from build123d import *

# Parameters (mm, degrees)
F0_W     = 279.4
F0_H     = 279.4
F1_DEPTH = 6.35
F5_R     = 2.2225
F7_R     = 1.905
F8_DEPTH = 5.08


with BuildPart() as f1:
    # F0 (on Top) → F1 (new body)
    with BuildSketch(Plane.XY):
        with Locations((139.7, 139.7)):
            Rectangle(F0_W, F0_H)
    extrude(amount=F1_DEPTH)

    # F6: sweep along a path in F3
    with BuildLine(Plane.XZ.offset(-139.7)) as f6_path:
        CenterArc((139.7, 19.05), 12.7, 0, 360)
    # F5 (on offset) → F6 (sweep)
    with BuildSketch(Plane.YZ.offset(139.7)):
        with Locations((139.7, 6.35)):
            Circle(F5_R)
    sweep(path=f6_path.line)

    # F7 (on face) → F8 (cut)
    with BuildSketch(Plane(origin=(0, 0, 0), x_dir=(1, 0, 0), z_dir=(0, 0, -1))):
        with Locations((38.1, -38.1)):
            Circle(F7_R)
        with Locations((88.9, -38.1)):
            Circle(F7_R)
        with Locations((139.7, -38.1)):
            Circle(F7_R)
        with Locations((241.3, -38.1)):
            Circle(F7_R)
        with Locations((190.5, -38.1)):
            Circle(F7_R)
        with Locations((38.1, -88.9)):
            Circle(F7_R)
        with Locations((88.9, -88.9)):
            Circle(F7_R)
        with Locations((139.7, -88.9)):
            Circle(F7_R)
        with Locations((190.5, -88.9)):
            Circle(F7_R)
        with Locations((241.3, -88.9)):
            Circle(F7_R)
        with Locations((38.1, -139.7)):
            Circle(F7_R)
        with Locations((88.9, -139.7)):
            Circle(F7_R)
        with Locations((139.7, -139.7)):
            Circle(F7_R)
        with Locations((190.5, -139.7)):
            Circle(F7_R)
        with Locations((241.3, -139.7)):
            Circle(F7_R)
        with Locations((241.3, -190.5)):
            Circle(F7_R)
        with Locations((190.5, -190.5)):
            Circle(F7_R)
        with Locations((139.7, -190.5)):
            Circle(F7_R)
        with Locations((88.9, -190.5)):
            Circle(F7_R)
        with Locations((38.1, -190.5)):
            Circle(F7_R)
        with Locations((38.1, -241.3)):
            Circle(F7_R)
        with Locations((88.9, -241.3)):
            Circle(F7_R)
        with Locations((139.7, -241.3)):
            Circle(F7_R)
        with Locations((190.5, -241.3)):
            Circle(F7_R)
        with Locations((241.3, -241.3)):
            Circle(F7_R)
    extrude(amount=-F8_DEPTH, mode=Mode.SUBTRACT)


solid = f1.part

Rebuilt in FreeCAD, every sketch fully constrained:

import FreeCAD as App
import Part
import Sketcher
Q = App.Units.Quantity


def add_polygon(sketch, points):
    """Adds a closed chain of lines whose ends are joined by coincident constraints."""
    first, n = sketch.GeometryCount, len(points)
    for a, b in zip(points, points[1:] + points[:1]):
        sketch.addGeometry(Part.LineSegment(App.Vector(*a, 0), App.Vector(*b, 0)), False)
    for i in range(n):
        sketch.addConstraint(Sketcher.Constraint("Coincident", first + i, 2, first + (i + 1) % n, 1))

doc = App.newDocument("Part")
params = doc.addObject("Spreadsheet::Sheet", "Params")
for row, (alias, value) in enumerate([
    ("sketch1_width", "11 in"),
    ("pad1_length", "0.25 in"),
    ("sketch2_diameter", "0.175 in"),
    ("sketch3_diameter", "1 in"),
    ("sketch4_diameter", "0.15 in"),
    ("pocket1_length", "0.2 in"),
], start=1):
    params.set(f"A{row}", alias)
    params.set(f"B{row}", "=" + value)
    params.setAlias(f"B{row}", alias)

body = doc.addObject("PartDesign::Body", "Body")

# Sketch on XY plane
sketch1 = doc.addObject("Sketcher::SketchObject", "Sketch")
body.addObject(sketch1)
sketch1.AttachmentSupport = (doc.XY_Plane, [""])
sketch1.MapMode = "FlatFace"
add_polygon(sketch1, [(0, 279), (0, 0), (279, 0), (279, 279)])  # lines 0-3
sketch1.addConstraint(Sketcher.Constraint("Vertical", 0))
sketch1.addConstraint(Sketcher.Constraint("Horizontal", 1))
sketch1.addConstraint(Sketcher.Constraint("Vertical", 2))
sketch1.addConstraint(Sketcher.Constraint("Horizontal", 3))
sketch1.addConstraint(Sketcher.Constraint("Coincident", 0, 2, -1, 1))
sketch1.addConstraint(Sketcher.Constraint("Equal", 3, 0))
sketch1.addConstraint(Sketcher.Constraint("DistanceX", 1, 1, 1, 2, Q("11 in")))
sketch1.setExpression("Constraints[10]", "Params.sketch1_width")
pad1 = doc.addObject("PartDesign::Pad", "Pad")
body.addObject(pad1)
pad1.Profile = sketch1
pad1.setExpression("Length", "Params.pad1_length")

# Sketch on YZ plane
sketch2 = doc.addObject("Sketcher::SketchObject", "Sketch001")
body.addObject(sketch2)
sketch2.AttachmentSupport = (doc.YZ_Plane, [""])
sketch2.MapMode = "FlatFace"
sketch2.AttachmentOffset = App.Placement(App.Vector(0, 0, 5.5 * 25.4), App.Rotation())
sketch2.addGeometry(Part.Circle(App.Vector(139.7, 6.3, 0), App.Vector(0, 0, 1), 2.2), False)
sketch2.addConstraint(Sketcher.Constraint("Diameter", 0, Q("0.175 in")))
sketch2.addConstraint(Sketcher.Constraint("DistanceX", -1, 1, 0, 3, Q("5.5 in")))
sketch2.addConstraint(Sketcher.Constraint("DistanceY", -1, 1, 0, 3, Q("0.25 in")))
sketch2.setExpression("Constraints[0]", "Params.sketch2_diameter")

# Sketch on XZ plane
sketch3 = doc.addObject("Sketcher::SketchObject", "Sketch002")
body.addObject(sketch3)
sketch3.AttachmentSupport = (doc.XZ_Plane, [""])
sketch3.MapMode = "FlatFace"
sketch3.AttachmentOffset = App.Placement(App.Vector(0, 0, -5.5 * 25.4), App.Rotation())
sketch3.addGeometry(Part.Circle(App.Vector(140, 19, 0), App.Vector(0, 0, 1), 13), False)
sketch3.addConstraint(Sketcher.Constraint("Diameter", 0, Q("1 in")))
sketch3.addConstraint(Sketcher.Constraint("DistanceX", -1, 1, 0, 3, Q("5.5 in")))
sketch3.addConstraint(Sketcher.Constraint("DistanceY", -1, 1, 0, 3, Q("0.75 in")))
sketch3.setExpression("Constraints[0]", "Params.sketch3_diameter")
doc.recompute()

additivepipe = doc.addObject("PartDesign::AdditivePipe", "AdditivePipe")
body.addObject(additivepipe)
additivepipe.Profile = sketch2
additivepipe.Spine = (sketch3, ["Edge1"])

# Sketch on XY plane
sketch4 = doc.addObject("Sketcher::SketchObject", "Sketch003")
body.addObject(sketch4)
sketch4.AttachmentSupport = (doc.XY_Plane, [""])
sketch4.MapMode = "FlatFace"
sketch4.addGeometry(Part.Circle(App.Vector(38.1, 38.1, 0), App.Vector(0, 0, 1), 1.9), False)
sketch4.addGeometry(Part.Circle(App.Vector(88.9, 38.1, 0), App.Vector(0, 0, 1), 1.9), False)
sketch4.addGeometry(Part.Circle(App.Vector(139.7, 38.1, 0), App.Vector(0, 0, 1), 1.9), False)
sketch4.addGeometry(Part.Circle(App.Vector(241.3, 38.1, 0), App.Vector(0, 0, 1), 1.9), False)
sketch4.addGeometry(Part.Circle(App.Vector(190.5, 38.1, 0), App.Vector(0, 0, 1), 1.9), False)
sketch4.addGeometry(Part.Circle(App.Vector(38.1, 88.9, 0), App.Vector(0, 0, 1), 1.9), False)
sketch4.addGeometry(Part.Circle(App.Vector(88.9, 88.9, 0), App.Vector(0, 0, 1), 1.9), False)
sketch4.addGeometry(Part.Circle(App.Vector(139.7, 88.9, 0), App.Vector(0, 0, 1), 1.9), False)
sketch4.addGeometry(Part.Circle(App.Vector(190.5, 88.9, 0), App.Vector(0, 0, 1), 1.9), False)
sketch4.addGeometry(Part.Circle(App.Vector(241.3, 88.9, 0), App.Vector(0, 0, 1), 1.9), False)
sketch4.addGeometry(Part.Circle(App.Vector(38.1, 139.7, 0), App.Vector(0, 0, 1), 1.9), False)
sketch4.addGeometry(Part.Circle(App.Vector(88.9, 139.7, 0), App.Vector(0, 0, 1), 1.9), False)
sketch4.addGeometry(Part.Circle(App.Vector(139.7, 139.7, 0), App.Vector(0, 0, 1), 1.9), False)
sketch4.addGeometry(Part.Circle(App.Vector(190.5, 139.7, 0), App.Vector(0, 0, 1), 1.9), False)
sketch4.addGeometry(Part.Circle(App.Vector(241.3, 139.7, 0), App.Vector(0, 0, 1), 1.9), False)
sketch4.addGeometry(Part.Circle(App.Vector(241.3, 190.5, 0), App.Vector(0, 0, 1), 1.9), False)
sketch4.addGeometry(Part.Circle(App.Vector(190.5, 190.5, 0), App.Vector(0, 0, 1), 1.9), False)
sketch4.addGeometry(Part.Circle(App.Vector(139.7, 190.5, 0), App.Vector(0, 0, 1), 1.9), False)
sketch4.addGeometry(Part.Circle(App.Vector(88.9, 190.5, 0), App.Vector(0, 0, 1), 1.9), False)
sketch4.addGeometry(Part.Circle(App.Vector(38.1, 190.5, 0), App.Vector(0, 0, 1), 1.9), False)
sketch4.addGeometry(Part.Circle(App.Vector(38.1, 241.3, 0), App.Vector(0, 0, 1), 1.9), False)
sketch4.addGeometry(Part.Circle(App.Vector(88.9, 241.3, 0), App.Vector(0, 0, 1), 1.9), False)
sketch4.addGeometry(Part.Circle(App.Vector(139.7, 241.3, 0), App.Vector(0, 0, 1), 1.9), False)
sketch4.addGeometry(Part.Circle(App.Vector(190.5, 241.3, 0), App.Vector(0, 0, 1), 1.9), False)
sketch4.addGeometry(Part.Circle(App.Vector(241.3, 241.3, 0), App.Vector(0, 0, 1), 1.9), False)
sketch4.addConstraint(Sketcher.Constraint("Equal", 0, 1))
sketch4.addConstraint(Sketcher.Constraint("Equal", 1, 2))
sketch4.addConstraint(Sketcher.Constraint("Equal", 2, 3))
sketch4.addConstraint(Sketcher.Constraint("Equal", 3, 4))
sketch4.addConstraint(Sketcher.Constraint("Equal", 4, 5))
sketch4.addConstraint(Sketcher.Constraint("Equal", 5, 6))
sketch4.addConstraint(Sketcher.Constraint("Equal", 6, 7))
sketch4.addConstraint(Sketcher.Constraint("Equal", 7, 8))
sketch4.addConstraint(Sketcher.Constraint("Equal", 8, 9))
sketch4.addConstraint(Sketcher.Constraint("Equal", 9, 10))
sketch4.addConstraint(Sketcher.Constraint("Equal", 10, 11))
sketch4.addConstraint(Sketcher.Constraint("Equal", 11, 12))
sketch4.addConstraint(Sketcher.Constraint("Equal", 12, 13))
sketch4.addConstraint(Sketcher.Constraint("Equal", 13, 14))
sketch4.addConstraint(Sketcher.Constraint("Equal", 14, 15))
sketch4.addConstraint(Sketcher.Constraint("Equal", 15, 16))
sketch4.addConstraint(Sketcher.Constraint("Equal", 16, 17))
sketch4.addConstraint(Sketcher.Constraint("Equal", 17, 18))
sketch4.addConstraint(Sketcher.Constraint("Equal", 18, 19))
sketch4.addConstraint(Sketcher.Constraint("Equal", 19, 20))
sketch4.addConstraint(Sketcher.Constraint("Equal", 20, 21))
sketch4.addConstraint(Sketcher.Constraint("Equal", 21, 22))
sketch4.addConstraint(Sketcher.Constraint("Equal", 22, 23))
sketch4.addConstraint(Sketcher.Constraint("Equal", 23, 24))
sketch4.addConstraint(Sketcher.Constraint("Horizontal", 0, 3, 1, 3))
sketch4.addConstraint(Sketcher.Constraint("Horizontal", 1, 3, 2, 3))
sketch4.addConstraint(Sketcher.Constraint("Horizontal", 2, 3, 3, 3))
sketch4.addConstraint(Sketcher.Constraint("Horizontal", 3, 3, 4, 3))
sketch4.addConstraint(Sketcher.Constraint("Horizontal", 5, 3, 6, 3))
sketch4.addConstraint(Sketcher.Constraint("Horizontal", 6, 3, 7, 3))
sketch4.addConstraint(Sketcher.Constraint("Horizontal", 7, 3, 8, 3))
sketch4.addConstraint(Sketcher.Constraint("Horizontal", 8, 3, 9, 3))
sketch4.addConstraint(Sketcher.Constraint("Horizontal", 10, 3, 11, 3))
sketch4.addConstraint(Sketcher.Constraint("Horizontal", 11, 3, 12, 3))
sketch4.addConstraint(Sketcher.Constraint("Horizontal", 12, 3, 13, 3))
sketch4.addConstraint(Sketcher.Constraint("Horizontal", 13, 3, 14, 3))
sketch4.addConstraint(Sketcher.Constraint("Horizontal", 15, 3, 16, 3))
sketch4.addConstraint(Sketcher.Constraint("Horizontal", 16, 3, 17, 3))
sketch4.addConstraint(Sketcher.Constraint("Horizontal", 17, 3, 18, 3))
sketch4.addConstraint(Sketcher.Constraint("Horizontal", 18, 3, 19, 3))
sketch4.addConstraint(Sketcher.Constraint("Horizontal", 20, 3, 21, 3))
sketch4.addConstraint(Sketcher.Constraint("Horizontal", 21, 3, 22, 3))
sketch4.addConstraint(Sketcher.Constraint("Horizontal", 22, 3, 23, 3))
sketch4.addConstraint(Sketcher.Constraint("Horizontal", 23, 3, 24, 3))
sketch4.addConstraint(Sketcher.Constraint("Vertical", 0, 3, 5, 3))
sketch4.addConstraint(Sketcher.Constraint("Vertical", 1, 3, 6, 3))
sketch4.addConstraint(Sketcher.Constraint("Vertical", 2, 3, 7, 3))
sketch4.addConstraint(Sketcher.Constraint("Vertical", 4, 3, 8, 3))
sketch4.addConstraint(Sketcher.Constraint("Vertical", 3, 3, 9, 3))
sketch4.addConstraint(Sketcher.Constraint("Vertical", 5, 3, 10, 3))
sketch4.addConstraint(Sketcher.Constraint("Vertical", 6, 3, 11, 3))
sketch4.addConstraint(Sketcher.Constraint("Vertical", 7, 3, 12, 3))
sketch4.addConstraint(Sketcher.Constraint("Vertical", 8, 3, 13, 3))
sketch4.addConstraint(Sketcher.Constraint("Vertical", 9, 3, 14, 3))
sketch4.addConstraint(Sketcher.Constraint("Vertical", 14, 3, 15, 3))
sketch4.addConstraint(Sketcher.Constraint("Vertical", 13, 3, 16, 3))
sketch4.addConstraint(Sketcher.Constraint("Vertical", 12, 3, 17, 3))
sketch4.addConstraint(Sketcher.Constraint("Vertical", 11, 3, 18, 3))
sketch4.addConstraint(Sketcher.Constraint("Vertical", 10, 3, 19, 3))
sketch4.addConstraint(Sketcher.Constraint("Vertical", 19, 3, 20, 3))
sketch4.addConstraint(Sketcher.Constraint("Vertical", 18, 3, 21, 3))
sketch4.addConstraint(Sketcher.Constraint("Vertical", 17, 3, 22, 3))
sketch4.addConstraint(Sketcher.Constraint("Vertical", 16, 3, 23, 3))
sketch4.addConstraint(Sketcher.Constraint("Vertical", 15, 3, 24, 3))
sketch4.addConstraint(Sketcher.Constraint("Diameter", 0, Q("0.15 in")))
sketch4.addConstraint(Sketcher.Constraint("DistanceX", 0, 3, 1, 3, Q("2 in")))
sketch4.addConstraint(Sketcher.Constraint("DistanceX", 1, 3, 2, 3, Q("2 in")))
sketch4.addConstraint(Sketcher.Constraint("DistanceX", 2, 3, 3, 3, Q("4 in")))
sketch4.addConstraint(Sketcher.Constraint("DistanceX", 2, 3, 4, 3, Q("2 in")))
sketch4.addConstraint(Sketcher.Constraint("DistanceY", 0, 3, 5, 3, Q("2 in")))
sketch4.addConstraint(Sketcher.Constraint("DistanceY", 5, 3, 10, 3, Q("2 in")))
sketch4.addConstraint(Sketcher.Constraint("DistanceY", 14, 3, 15, 3, Q("2 in")))
sketch4.addConstraint(Sketcher.Constraint("DistanceY", 19, 3, 20, 3, Q("2 in")))
sketch4.addConstraint(Sketcher.Constraint("DistanceX", -1, 1, 0, 3, Q("1.5 in")))
sketch4.addConstraint(Sketcher.Constraint("DistanceY", -1, 1, 0, 3, Q("1.5 in")))
sketch4.setExpression("Constraints[64]", "Params.sketch4_diameter")
pocket1 = doc.addObject("PartDesign::Pocket", "Pocket")
body.addObject(pocket1)
pocket1.Profile = sketch4
pocket1.setExpression("Length", "Params.pocket1_length")
pocket1.Reversed = True

doc.recompute()
